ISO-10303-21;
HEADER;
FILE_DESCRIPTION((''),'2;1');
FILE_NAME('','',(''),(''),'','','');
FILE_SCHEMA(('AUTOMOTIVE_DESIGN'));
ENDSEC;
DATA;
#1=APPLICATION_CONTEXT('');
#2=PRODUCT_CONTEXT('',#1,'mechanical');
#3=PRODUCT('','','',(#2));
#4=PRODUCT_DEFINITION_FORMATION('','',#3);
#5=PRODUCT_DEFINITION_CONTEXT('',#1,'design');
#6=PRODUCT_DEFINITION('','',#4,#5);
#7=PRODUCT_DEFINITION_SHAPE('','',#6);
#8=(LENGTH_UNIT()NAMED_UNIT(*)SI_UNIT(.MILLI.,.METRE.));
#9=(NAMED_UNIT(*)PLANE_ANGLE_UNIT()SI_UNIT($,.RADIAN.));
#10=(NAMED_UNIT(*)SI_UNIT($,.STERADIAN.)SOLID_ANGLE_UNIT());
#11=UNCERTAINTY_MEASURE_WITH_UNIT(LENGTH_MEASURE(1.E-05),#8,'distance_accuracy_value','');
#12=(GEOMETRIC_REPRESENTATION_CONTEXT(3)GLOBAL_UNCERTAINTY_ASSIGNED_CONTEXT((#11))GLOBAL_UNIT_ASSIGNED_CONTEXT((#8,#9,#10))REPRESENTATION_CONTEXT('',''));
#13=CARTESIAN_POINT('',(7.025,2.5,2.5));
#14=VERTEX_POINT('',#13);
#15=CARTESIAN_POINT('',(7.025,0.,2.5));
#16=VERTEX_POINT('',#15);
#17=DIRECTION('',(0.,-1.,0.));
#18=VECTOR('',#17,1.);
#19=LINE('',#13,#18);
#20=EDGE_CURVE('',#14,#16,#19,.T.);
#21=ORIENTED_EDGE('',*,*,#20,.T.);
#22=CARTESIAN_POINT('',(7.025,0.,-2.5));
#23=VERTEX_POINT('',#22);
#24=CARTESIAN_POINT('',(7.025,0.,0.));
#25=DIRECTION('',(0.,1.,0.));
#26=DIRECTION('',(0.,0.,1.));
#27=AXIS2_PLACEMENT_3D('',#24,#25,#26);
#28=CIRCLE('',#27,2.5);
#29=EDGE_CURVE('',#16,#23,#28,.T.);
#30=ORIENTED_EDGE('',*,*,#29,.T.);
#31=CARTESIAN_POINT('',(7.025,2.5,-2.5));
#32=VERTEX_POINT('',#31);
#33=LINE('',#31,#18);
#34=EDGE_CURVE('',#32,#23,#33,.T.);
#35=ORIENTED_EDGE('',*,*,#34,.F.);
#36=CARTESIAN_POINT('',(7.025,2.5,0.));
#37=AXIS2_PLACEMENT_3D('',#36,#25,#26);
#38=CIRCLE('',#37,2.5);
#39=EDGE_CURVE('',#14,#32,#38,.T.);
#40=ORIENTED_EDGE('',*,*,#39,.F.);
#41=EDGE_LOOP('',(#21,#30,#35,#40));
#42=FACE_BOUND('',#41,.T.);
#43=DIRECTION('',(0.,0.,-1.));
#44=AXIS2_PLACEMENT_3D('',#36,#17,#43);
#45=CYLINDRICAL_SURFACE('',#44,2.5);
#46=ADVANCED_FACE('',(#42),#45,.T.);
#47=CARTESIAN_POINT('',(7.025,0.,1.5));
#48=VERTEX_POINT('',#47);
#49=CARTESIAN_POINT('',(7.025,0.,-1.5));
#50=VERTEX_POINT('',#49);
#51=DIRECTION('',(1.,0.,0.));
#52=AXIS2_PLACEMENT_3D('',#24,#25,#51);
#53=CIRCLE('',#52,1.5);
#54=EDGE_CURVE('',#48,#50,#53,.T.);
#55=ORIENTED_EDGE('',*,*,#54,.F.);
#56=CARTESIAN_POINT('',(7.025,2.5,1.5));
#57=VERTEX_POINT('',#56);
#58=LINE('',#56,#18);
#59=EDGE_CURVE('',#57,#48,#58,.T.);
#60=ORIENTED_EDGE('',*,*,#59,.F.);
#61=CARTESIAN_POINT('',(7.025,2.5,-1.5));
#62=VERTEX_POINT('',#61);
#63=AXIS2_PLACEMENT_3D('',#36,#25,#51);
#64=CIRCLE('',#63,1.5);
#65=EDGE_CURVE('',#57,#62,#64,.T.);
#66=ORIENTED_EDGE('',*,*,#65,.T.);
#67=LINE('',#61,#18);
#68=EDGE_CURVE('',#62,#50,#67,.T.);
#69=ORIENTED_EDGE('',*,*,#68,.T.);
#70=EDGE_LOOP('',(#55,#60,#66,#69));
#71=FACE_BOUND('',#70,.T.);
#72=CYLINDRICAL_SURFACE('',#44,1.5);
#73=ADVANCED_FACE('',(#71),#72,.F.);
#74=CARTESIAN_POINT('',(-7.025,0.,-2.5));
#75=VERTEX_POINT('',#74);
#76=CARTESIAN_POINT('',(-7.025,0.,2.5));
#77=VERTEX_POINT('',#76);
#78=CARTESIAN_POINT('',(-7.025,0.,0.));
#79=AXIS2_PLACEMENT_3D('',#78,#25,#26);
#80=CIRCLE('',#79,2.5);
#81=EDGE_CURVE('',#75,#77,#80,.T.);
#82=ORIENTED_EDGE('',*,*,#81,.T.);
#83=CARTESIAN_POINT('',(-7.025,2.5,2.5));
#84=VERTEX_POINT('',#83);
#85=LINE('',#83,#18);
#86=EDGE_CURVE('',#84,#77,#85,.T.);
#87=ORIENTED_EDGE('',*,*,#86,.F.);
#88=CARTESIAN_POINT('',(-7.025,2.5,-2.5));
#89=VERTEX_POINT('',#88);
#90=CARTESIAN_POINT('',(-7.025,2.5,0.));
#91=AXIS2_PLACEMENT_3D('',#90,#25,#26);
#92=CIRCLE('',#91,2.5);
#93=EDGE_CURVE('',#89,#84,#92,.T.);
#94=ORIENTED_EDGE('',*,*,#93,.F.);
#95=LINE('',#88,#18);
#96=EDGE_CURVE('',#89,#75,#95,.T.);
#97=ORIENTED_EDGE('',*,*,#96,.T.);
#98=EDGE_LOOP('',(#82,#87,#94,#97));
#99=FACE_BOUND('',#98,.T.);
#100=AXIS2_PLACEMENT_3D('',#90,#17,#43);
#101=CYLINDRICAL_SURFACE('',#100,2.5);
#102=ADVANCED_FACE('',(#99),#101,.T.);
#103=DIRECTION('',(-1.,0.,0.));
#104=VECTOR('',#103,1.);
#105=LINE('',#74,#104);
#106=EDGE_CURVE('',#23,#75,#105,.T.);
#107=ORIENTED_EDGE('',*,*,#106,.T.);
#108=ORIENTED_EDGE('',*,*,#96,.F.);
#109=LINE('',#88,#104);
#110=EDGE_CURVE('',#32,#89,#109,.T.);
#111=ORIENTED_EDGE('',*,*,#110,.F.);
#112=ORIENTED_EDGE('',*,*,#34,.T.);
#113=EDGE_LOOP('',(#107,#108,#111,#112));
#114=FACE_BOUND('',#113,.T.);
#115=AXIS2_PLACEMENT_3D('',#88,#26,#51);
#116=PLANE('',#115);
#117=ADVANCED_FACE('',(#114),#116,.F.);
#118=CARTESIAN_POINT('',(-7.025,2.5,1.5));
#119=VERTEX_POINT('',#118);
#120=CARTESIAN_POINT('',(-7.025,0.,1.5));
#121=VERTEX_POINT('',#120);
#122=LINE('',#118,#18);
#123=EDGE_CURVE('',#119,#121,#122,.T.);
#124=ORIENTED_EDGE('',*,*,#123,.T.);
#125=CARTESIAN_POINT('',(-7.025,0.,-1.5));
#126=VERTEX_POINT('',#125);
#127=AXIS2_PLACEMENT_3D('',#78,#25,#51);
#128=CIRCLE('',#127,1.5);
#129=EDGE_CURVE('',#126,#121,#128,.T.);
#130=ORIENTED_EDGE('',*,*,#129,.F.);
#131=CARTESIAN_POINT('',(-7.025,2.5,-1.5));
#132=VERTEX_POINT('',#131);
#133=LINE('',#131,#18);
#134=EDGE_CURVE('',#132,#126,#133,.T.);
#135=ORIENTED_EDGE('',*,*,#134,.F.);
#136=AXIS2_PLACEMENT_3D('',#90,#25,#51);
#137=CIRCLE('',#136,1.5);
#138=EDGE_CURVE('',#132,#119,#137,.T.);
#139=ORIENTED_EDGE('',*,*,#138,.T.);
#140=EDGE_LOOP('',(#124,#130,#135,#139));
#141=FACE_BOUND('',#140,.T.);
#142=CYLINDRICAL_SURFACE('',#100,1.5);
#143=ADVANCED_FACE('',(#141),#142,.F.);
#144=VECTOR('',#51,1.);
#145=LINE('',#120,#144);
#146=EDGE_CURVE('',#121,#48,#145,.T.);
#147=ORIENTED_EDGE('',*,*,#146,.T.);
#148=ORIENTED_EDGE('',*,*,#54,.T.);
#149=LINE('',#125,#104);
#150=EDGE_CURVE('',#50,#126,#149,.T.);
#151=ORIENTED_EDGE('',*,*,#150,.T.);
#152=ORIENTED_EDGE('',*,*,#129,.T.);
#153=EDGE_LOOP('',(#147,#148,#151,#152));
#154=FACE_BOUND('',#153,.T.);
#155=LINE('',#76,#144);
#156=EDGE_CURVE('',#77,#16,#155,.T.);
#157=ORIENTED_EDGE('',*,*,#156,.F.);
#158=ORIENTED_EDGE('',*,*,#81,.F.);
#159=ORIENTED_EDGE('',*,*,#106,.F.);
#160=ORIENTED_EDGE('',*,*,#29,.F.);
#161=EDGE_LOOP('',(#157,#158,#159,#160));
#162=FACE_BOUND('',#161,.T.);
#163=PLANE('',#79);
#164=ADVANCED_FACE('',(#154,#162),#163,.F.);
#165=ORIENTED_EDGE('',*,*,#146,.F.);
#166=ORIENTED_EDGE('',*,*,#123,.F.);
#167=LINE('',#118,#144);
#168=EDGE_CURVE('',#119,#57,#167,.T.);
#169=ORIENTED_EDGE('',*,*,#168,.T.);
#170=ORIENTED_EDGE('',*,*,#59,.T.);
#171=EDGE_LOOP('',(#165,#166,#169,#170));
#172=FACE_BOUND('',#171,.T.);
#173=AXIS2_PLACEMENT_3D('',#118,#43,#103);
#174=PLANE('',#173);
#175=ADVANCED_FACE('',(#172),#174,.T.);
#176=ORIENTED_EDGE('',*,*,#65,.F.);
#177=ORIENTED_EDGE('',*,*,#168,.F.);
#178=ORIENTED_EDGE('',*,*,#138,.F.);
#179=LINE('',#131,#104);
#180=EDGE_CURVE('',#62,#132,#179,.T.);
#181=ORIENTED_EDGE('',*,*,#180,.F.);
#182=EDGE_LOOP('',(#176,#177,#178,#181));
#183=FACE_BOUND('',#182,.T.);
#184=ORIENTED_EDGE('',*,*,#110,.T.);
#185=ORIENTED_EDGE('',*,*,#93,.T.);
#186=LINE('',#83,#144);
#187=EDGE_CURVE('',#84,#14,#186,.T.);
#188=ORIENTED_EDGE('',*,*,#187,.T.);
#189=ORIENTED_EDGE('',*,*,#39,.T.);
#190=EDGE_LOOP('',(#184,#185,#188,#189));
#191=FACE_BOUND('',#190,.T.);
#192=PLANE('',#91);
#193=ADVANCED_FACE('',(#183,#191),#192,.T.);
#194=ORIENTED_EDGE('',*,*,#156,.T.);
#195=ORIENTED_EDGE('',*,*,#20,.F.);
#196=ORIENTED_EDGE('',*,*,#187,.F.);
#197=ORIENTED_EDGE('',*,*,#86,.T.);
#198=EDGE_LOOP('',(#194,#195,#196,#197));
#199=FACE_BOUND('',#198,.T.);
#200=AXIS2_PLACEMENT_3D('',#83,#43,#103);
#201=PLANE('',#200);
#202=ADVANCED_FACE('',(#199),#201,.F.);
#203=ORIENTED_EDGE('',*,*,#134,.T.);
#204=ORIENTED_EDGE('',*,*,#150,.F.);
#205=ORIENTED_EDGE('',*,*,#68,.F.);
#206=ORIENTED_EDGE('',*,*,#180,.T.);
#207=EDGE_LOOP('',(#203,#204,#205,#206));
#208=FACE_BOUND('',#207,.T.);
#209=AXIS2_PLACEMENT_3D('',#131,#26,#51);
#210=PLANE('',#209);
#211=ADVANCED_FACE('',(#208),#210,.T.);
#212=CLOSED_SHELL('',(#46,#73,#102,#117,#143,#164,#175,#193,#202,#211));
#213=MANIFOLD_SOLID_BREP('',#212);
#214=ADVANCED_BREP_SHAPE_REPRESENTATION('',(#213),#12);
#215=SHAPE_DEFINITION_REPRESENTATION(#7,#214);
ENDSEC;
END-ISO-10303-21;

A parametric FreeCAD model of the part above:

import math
import FreeCAD as App
import Part
import Sketcher

V = App.Vector
Q = App.Units.Quantity

doc = App.newDocument("Part")
body = doc.addObject("PartDesign::Body", "Body")

sketch1 = body.newObject("Sketcher::SketchObject", "Sketch")
sketch1.AttachmentSupport = (doc.getObject("XZ_Plane"), [""])
sketch1.MapMode = "FlatFace"
sketch1.addGeometry(Part.LineSegment(V(-7, 2.5, 0), V(7, 2.5, 0)), False)
sketch1.addGeometry(Part.ArcOfCircle(Part.Circle(V(7, 0, 0), V(0, 0, 1), 2.5), math.radians(-90), math.radians(90)), False)
sketch1.addGeometry(Part.LineSegment(V(7, -2.5, 0), V(-7, -2.5, 0)), False)
sketch1.addGeometry(Part.ArcOfCircle(Part.Circle(V(-7, 0, 0), V(0, 0, 1), 2.5), math.radians(90), math.radians(270)), False)
sketch1.addGeometry(Part.LineSegment(V(7, 1.5, 0), V(-7, 1.5, 0)), False)
sketch1.addGeometry(Part.ArcOfCircle(Part.Circle(V(-7, 0, 0), V(0, 0, 1), 1.5), math.radians(90), math.radians(270)), False)
sketch1.addGeometry(Part.LineSegment(V(-7, -1.5, 0), V(7, -1.5, 0)), False)
sketch1.addGeometry(Part.ArcOfCircle(Part.Circle(V(7, 0, 0), V(0, 0, 1), 1.5), math.radians(-90), math.radians(90)), False)
sketch1.addConstraint(Sketcher.Constraint("Tangent", 0, 2, 1, 2))
sketch1.addConstraint(Sketcher.Constraint("Tangent", 1, 1, 2, 1))
sketch1.addConstraint(Sketcher.Constraint("Tangent", 2, 2, 3, 2))
sketch1.addConstraint(Sketcher.Constraint("Tangent", 3, 1, 0, 1))
sketch1.addConstraint(Sketcher.Constraint("Tangent", 4, 2, 5, 1))
sketch1.addConstraint(Sketcher.Constraint("Tangent", 5, 2, 6, 1))
sketch1.addConstraint(Sketcher.Constraint("Tangent", 6, 2, 7, 1))
sketch1.addConstraint(Sketcher.Constraint("Tangent", 7, 2, 4, 1))
sketch1.addConstraint(Sketcher.Constraint("Horizontal", 0))
sketch1.addConstraint(Sketcher.Constraint("Horizontal", 2))
sketch1.addConstraint(Sketcher.Constraint("Horizontal", 4))
sketch1.addConstraint(Sketcher.Constraint("Horizontal", 6))
sketch1.addConstraint(Sketcher.Constraint("Coincident", 5, 3, 3, 3))
sketch1.addConstraint(Sketcher.Constraint("Symmetric", 1, 3, 3, 3, -1, 1))
sketch1.addConstraint(Sketcher.Constraint("Vertical", 7, 3, 0, 2))
sketch1.addConstraint(Sketcher.Constraint("Radius", 1, Q("2.5 mm")))
sketch1.addConstraint(Sketcher.Constraint("Radius", 5, Q("1.5 mm")))
sketch1.addConstraint(Sketcher.Constraint("DistanceX", 0, 1, 0, 2, Q("14.05 mm")))
pad1 = body.newObject("PartDesign::Pad", "Pad")
pad1.Profile = sketch1
pad1.Length = 2.5
pad1.Reversed = True

doc.recompute()
